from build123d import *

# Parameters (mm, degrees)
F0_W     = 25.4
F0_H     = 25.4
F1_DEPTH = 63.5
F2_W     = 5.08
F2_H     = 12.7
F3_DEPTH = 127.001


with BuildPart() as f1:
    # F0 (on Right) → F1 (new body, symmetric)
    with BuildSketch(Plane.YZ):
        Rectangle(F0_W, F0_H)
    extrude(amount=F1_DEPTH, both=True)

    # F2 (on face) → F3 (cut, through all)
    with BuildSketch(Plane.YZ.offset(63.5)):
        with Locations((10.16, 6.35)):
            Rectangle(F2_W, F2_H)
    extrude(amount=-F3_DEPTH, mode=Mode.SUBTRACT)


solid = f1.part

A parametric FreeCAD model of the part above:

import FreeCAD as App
import Part
import Sketcher

V = App.Vector
Q = App.Units.Quantity


def add_polygon(sketch, points):
    """Adds a closed chain of lines whose ends are joined by coincident constraints."""
    first, n = sketch.GeometryCount, len(points)
    for a, b in zip(points, points[1:] + points[:1]):
        sketch.addGeometry(Part.LineSegment(App.Vector(*a, 0), App.Vector(*b, 0)), False)
    for i in range(n):
        sketch.addConstraint(Sketcher.Constraint("Coincident", first + i, 2, first + (i + 1) % n, 1))

doc = App.newDocument("Part")
body = doc.addObject("PartDesign::Body", "Body")

# Sketch on YZ plane
sketch1 = doc.addObject("Sketcher::SketchObject", "Sketch")
body.addObject(sketch1)
sketch1.AttachmentSupport = (doc.YZ_Plane, [""])
sketch1.MapMode = "FlatFace"
add_polygon(sketch1, [(-13, 13), (-13, -13), (13, -13), (13, 13)])  # lines 0-3
sketch1.addConstraint(Sketcher.Constraint("Vertical", 0))
sketch1.addConstraint(Sketcher.Constraint("Horizontal", 1))
sketch1.addConstraint(Sketcher.Constraint("Vertical", 2))
sketch1.addConstraint(Sketcher.Constraint("Horizontal", 3))
sketch1.addConstraint(Sketcher.Constraint("Symmetric", 0, 2, 2, 2, -1, 1))
sketch1.addConstraint(Sketcher.Constraint("Equal", 3, 0))
sketch1.addConstraint(Sketcher.Constraint("DistanceX", 1, 1, 1, 2, Q("1 in")))
pad1 = doc.addObject("PartDesign::Pad", "Pad")
body.addObject(pad1)
pad1.Profile = sketch1
pad1.Length = Q("5 in")
pad1.Midplane = True

# Sketch on YZ plane
sketch2 = doc.addObject("Sketcher::SketchObject", "Sketch001")
body.addObject(sketch2)
sketch2.AttachmentSupport = (doc.YZ_Plane, [""])
sketch2.MapMode = "FlatFace"
sketch2.AttachmentOffset = App.Placement(V(0, 0, 2.5 * 25.4), App.Rotation())
add_polygon(sketch2, [(8, 13), (8, 0), (13, 0), (13, 13)])  # lines 0-3
sketch2.addConstraint(Sketcher.Constraint("Vertical", 0))
sketch2.addConstraint(Sketcher.Constraint("Horizontal", 1))
sketch2.addConstraint(Sketcher.Constraint("Vertical", 2))
sketch2.addConstraint(Sketcher.Constraint("Horizontal", 3))
sketch2.addConstraint(Sketcher.Constraint("PointOnObject", 0, 2, -1))
sketch2.addConstraint(Sketcher.Constraint("DistanceX", 1, 1, 1, 2, Q("0.2 in")))
sketch2.addConstraint(Sketcher.Constraint("DistanceY", 0, 2, 0, 1, Q("0.5 in")))
sketch2.addConstraint(Sketcher.Constraint("DistanceX", -1, 1, 0, 2, Q("0.3 in")))
pocket1 = doc.addObject("PartDesign::Pocket", "Pocket")
body.addObject(pocket1)
pocket1.Profile = sketch2
pocket1.Type = "ThroughAll"

doc.recompute()
